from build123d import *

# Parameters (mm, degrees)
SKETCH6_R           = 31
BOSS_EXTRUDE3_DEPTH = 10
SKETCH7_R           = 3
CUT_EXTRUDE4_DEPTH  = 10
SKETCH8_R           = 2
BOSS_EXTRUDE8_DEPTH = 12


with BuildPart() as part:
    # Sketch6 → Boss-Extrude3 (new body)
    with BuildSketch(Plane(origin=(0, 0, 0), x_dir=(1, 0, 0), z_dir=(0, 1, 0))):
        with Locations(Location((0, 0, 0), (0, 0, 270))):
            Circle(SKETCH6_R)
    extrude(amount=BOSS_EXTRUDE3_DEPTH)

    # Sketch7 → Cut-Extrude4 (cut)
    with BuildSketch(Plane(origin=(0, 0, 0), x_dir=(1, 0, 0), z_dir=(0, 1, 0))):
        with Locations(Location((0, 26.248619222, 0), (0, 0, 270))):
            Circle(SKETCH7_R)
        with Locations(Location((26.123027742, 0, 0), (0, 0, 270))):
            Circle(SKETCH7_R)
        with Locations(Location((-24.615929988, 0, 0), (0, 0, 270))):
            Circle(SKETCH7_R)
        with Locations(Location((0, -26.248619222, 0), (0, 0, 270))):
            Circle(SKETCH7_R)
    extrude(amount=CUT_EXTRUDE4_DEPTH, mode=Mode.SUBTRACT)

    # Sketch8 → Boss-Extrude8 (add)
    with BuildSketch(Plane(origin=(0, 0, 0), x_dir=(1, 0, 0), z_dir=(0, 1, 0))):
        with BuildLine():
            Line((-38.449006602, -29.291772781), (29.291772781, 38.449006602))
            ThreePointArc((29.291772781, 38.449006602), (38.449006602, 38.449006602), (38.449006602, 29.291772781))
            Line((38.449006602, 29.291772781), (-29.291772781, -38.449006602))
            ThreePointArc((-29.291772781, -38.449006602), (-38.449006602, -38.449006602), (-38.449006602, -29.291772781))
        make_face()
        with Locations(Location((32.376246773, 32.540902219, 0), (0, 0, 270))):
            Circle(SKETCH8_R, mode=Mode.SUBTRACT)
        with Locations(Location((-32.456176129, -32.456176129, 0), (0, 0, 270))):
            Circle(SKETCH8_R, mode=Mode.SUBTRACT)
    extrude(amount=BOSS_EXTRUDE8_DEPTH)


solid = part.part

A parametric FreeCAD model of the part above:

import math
import FreeCAD as App
import Part
import Sketcher
from FreeCAD import Vector
Q = App.Units.Quantity

doc = App.newDocument("Part")
body = doc.addObject("PartDesign::Body", "Body")

# Sketch on XZ plane
sketch1 = body.newObject("Sketcher::SketchObject", "Sketch")
sketch1.AttachmentSupport = (doc.getObject("XZ_Plane"), [""])
sketch1.MapMode = "FlatFace"
sketch1.addGeometry(Part.Circle(Vector(0, 0, 0), Vector(0, 0, 1), 31), False)
sketch1.addConstraint([
    Sketcher.Constraint("Coincident", 0, 3, -1, 1),
    Sketcher.Constraint("Diameter", 0, Q("62 mm")),
])
pad1 = body.newObject("PartDesign::Pad", "Pad")
pad1.Profile = sketch1
pad1.Length = 10
pad1.Reversed = True

# Sketch on XZ plane
sketch2 = body.newObject("Sketcher::SketchObject", "Sketch001")
sketch2.AttachmentSupport = (doc.getObject("XZ_Plane"), [""])
sketch2.MapMode = "FlatFace"
sketch2.addGeometry([
    Part.Circle(Vector(0, -26.2, 0), Vector(0, 0, 1), 3),
    Part.Circle(Vector(26.1, 0, 0), Vector(0, 0, 1), 3),
    Part.Circle(Vector(-24.6, 0, 0), Vector(0, 0, 1), 3),
    Part.Circle(Vector(0, 26.2, 0), Vector(0, 0, 1), 3),
], False)
sketch2.addConstraint([
    Sketcher.Constraint("Equal", 0, 1),
    Sketcher.Constraint("Equal", 1, 2),
    Sketcher.Constraint("Equal", 2, 3),
    Sketcher.Constraint("Symmetric", 0, 3, 3, 3, -1, 1),
    Sketcher.Constraint("PointOnObject", 0, 3, -2),
    Sketcher.Constraint("PointOnObject", 1, 3, -1),
    Sketcher.Constraint("PointOnObject", 2, 3, -1),
    Sketcher.Constraint("Diameter", 0, Q("6 mm")),
    Sketcher.Constraint("DistanceY", 0, 3, -1, 1, Q("26.248619 mm")),
    Sketcher.Constraint("DistanceX", 2, 3, -1, 1, Q("24.61593 mm")),
    Sketcher.Constraint("DistanceX", -1, 1, 1, 3, Q("26.123028 mm")),
])
pocket1 = body.newObject("PartDesign::Pocket", "Pocket")
pocket1.Profile = sketch2
pocket1.Length = 10

# Sketch on XZ plane
sketch3 = body.newObject("Sketcher::SketchObject", "Sketch002")
sketch3.AttachmentSupport = (doc.getObject("XZ_Plane"), [""])
sketch3.MapMode = "FlatFace"
sketch3.addGeometry([
    Part.LineSegment(Vector(29.3, -38.4, 0), Vector(-38.4, 29.3, 0)),  # 0
    Part.ArcOfCircle(Part.Circle(Vector(-33.9, 33.9, 0), Vector(0, 0, 1), 6.5), math.radians(45), math.radians(225)),  # 1
    Part.LineSegment(Vector(-29.3, 38.4, 0), Vector(38.4, -29.3, 0)),  # 2
    Part.ArcOfCircle(Part.Circle(Vector(33.9, -33.9, 0), Vector(0, 0, 1), 6.5), math.radians(-135), math.radians(45)),  # 3
    Part.Circle(Vector(-32.5, 32.5, 0), Vector(0, 0, 1), 2),  # 4
    Part.Circle(Vector(32.4, -32.5, 0), Vector(0, 0, 1), 2),  # 5
], False)
sketch3.addConstraint([
    Sketcher.Constraint("Tangent", 0, 2, 1, 2),
    Sketcher.Constraint("Tangent", 1, 1, 2, 1),
    Sketcher.Constraint("Tangent", 2, 2, 3, 2),
    Sketcher.Constraint("Tangent", 3, 1, 0, 1),
    Sketcher.Constraint("Equal", 1, 3),
    Sketcher.Constraint("Equal", 4, 5),
    Sketcher.Constraint("Symmetric", 1, 3, 3, 3, -1, 1),
    Sketcher.Constraint("Diameter", 4, Q("4 mm")),
    Sketcher.Constraint("Angle", 0, Q("135 deg")),
    Sketcher.Constraint("Radius", 1, Q("6.475142 mm")),
    Sketcher.Constraint("Distance", 0, Q("95.799929 mm")),
    Sketcher.Constraint("DistanceY", 5, 3, 4, 3, Q("64.997078 mm")),
    Sketcher.Constraint("DistanceY", 5, 3, 1, 3, Q("66.411292 mm")),
    Sketcher.Constraint("DistanceX", 0, 2, 4, 3, Q("5.99283 mm")),
    Sketcher.Constraint("DistanceX", 1, 1, 5, 3, Q("61.66802 mm")),
])
pad2 = body.newObject("PartDesign::Pad", "Pad001")
pad2.Profile = sketch3
pad2.Length = 12
pad2.Reversed = True

doc.recompute()
